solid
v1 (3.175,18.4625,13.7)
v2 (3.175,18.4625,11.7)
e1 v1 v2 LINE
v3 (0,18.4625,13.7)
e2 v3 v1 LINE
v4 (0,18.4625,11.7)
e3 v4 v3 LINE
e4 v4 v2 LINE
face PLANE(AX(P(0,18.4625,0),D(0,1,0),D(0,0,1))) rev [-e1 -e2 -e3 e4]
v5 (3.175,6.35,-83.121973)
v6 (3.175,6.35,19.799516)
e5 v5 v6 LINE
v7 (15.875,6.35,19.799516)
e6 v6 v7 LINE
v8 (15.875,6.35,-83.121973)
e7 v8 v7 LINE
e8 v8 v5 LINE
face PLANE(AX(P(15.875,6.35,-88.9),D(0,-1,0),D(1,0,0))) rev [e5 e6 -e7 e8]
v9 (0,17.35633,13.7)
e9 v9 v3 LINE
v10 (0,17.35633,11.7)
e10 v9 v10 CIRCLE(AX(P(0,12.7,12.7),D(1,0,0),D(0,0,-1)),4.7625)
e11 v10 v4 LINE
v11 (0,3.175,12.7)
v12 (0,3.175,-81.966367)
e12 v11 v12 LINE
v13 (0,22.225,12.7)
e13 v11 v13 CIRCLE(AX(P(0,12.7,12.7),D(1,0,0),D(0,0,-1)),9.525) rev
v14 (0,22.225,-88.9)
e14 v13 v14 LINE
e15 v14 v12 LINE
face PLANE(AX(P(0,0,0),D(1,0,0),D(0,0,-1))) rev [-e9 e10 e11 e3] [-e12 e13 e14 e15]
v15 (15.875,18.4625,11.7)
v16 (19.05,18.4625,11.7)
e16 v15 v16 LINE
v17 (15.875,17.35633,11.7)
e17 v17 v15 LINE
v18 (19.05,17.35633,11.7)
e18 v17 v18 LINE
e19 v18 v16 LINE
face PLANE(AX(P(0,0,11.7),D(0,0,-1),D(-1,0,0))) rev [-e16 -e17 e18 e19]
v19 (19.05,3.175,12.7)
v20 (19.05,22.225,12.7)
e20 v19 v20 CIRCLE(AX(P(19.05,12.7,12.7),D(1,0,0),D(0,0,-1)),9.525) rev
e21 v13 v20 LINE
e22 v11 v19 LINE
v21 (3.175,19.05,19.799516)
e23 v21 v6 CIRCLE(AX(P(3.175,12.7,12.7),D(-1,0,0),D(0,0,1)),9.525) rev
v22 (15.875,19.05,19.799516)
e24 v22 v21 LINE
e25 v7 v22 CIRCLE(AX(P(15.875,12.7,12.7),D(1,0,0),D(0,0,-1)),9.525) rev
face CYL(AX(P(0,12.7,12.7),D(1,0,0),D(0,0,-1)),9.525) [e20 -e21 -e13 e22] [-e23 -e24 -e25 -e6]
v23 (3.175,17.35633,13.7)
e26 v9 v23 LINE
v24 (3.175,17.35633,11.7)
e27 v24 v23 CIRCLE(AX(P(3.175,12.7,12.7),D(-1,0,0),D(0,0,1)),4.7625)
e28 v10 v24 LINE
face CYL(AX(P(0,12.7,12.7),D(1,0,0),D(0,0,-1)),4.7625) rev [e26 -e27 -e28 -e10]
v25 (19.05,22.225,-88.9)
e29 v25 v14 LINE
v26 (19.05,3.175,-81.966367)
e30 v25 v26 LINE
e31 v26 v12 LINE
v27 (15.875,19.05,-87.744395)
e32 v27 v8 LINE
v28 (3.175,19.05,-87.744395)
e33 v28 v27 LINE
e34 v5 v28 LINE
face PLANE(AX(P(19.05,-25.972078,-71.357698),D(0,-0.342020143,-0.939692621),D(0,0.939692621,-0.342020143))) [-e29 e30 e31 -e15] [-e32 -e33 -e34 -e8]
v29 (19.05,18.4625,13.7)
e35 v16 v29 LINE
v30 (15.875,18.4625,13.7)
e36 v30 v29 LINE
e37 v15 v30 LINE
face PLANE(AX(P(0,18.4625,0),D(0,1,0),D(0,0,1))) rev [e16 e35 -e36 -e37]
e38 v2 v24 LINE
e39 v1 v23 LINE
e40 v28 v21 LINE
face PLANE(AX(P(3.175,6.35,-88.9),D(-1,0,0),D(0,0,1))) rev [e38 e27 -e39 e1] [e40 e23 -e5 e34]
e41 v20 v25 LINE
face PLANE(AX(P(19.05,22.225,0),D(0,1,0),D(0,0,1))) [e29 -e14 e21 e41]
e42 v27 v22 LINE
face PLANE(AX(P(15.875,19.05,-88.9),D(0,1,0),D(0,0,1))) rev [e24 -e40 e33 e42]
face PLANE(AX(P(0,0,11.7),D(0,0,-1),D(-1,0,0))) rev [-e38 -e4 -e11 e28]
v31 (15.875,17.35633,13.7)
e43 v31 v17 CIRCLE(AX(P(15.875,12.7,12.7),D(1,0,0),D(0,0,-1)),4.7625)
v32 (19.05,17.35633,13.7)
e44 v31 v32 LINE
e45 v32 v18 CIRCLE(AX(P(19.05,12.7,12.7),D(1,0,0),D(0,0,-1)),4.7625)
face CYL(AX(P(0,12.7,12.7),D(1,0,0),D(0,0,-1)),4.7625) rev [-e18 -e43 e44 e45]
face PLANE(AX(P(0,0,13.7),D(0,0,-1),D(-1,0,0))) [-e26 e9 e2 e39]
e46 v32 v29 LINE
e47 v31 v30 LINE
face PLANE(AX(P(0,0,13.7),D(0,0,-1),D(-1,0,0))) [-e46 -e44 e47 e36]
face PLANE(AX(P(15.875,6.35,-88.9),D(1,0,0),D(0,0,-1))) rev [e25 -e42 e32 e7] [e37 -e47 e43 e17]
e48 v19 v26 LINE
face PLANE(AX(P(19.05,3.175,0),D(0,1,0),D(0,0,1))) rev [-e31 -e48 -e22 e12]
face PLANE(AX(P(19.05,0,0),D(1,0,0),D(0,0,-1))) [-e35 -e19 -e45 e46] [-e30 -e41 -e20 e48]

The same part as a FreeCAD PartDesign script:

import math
import FreeCAD as App
import Part
import Sketcher

V = App.Vector
Q = App.Units.Quantity

doc = App.newDocument("Part")
body = doc.addObject("PartDesign::Body", "Body")

# Sketch on YZ plane
sketch1 = doc.addObject("Sketcher::SketchObject", "Sketch")
body.addObject(sketch1)
sketch1.AttachmentSupport = (doc.YZ_Plane, [""])
sketch1.MapMode = "FlatFace"
sketch1.addGeometry(Part.LineSegment(V(22.225, -88.9, 0), V(22.225, 12.7, 0)), False)
sketch1.addGeometry(Part.LineSegment(V(22.225, 12.7, 0), V(3.175, 12.7, 0)), False)
sketch1.addGeometry(Part.LineSegment(V(3.175, 12.7, 0), V(3.175, -81.966367, 0)), False)
sketch1.addGeometry(Part.LineSegment(V(3.175, -81.966367, 0), V(22.225, -88.9, 0)), False)
sketch1.addConstraint(Sketcher.Constraint("Coincident", 0, 2, 1, 1))
sketch1.addConstraint(Sketcher.Constraint("Coincident", 1, 2, 2, 1))
sketch1.addConstraint(Sketcher.Constraint("Coincident", 2, 2, 3, 1))
sketch1.addConstraint(Sketcher.Constraint("Coincident", 3, 2, 0, 1))
sketch1.addConstraint(Sketcher.Constraint("Vertical", 0))
sketch1.addConstraint(Sketcher.Constraint("Horizontal", 1))
sketch1.addConstraint(Sketcher.Constraint("Vertical", 2))
sketch1.addConstraint(Sketcher.Constraint("DistanceY", 0, 1, 0, 2, Q("4 in")))
sketch1.addConstraint(Sketcher.Constraint("Angle", 3, Q("-20 deg")))
sketch1.addConstraint(Sketcher.Constraint("DistanceX", 1, 2, 1, 1, Q("0.75 in")))
sketch1.addConstraint(Sketcher.Constraint("DistanceY", -1, 1, 0, 2, Q("0.5 in")))
sketch1.addConstraint(Sketcher.Constraint("DistanceX", -1, 1, 0, 2, Q("0.875 in")))
pad1 = doc.addObject("PartDesign::Pad", "Pad")
body.addObject(pad1)
pad1.Profile = sketch1
pad1.Length = Q("0.75 in")

# Sketch on XY plane
sketch2 = doc.addObject("Sketcher::SketchObject", "Sketch001")
body.addObject(sketch2)
sketch2.AttachmentSupport = (doc.XY_Plane, [""])
sketch2.MapMode = "FlatFace"
sketch2.AttachmentOffset = App.Placement(V(0, 0, 0.5 * 25.4), App.Rotation())
sketch2.addGeometry(Part.LineSegment(V(3.175, 19.05, 0), V(3.175, 6.35, 0)), False)
sketch2.addGeometry(Part.LineSegment(V(3.175, 6.35, 0), V(15.875, 6.35, 0)), False)
sketch2.addGeometry(Part.LineSegment(V(15.875, 6.35, 0), V(15.875, 19.05, 0)), False)
sketch2.addGeometry(Part.LineSegment(V(15.875, 19.05, 0), V(3.175, 19.05, 0)), False)
sketch2.addConstraint(Sketcher.Constraint("Coincident", 0, 2, 1, 1))
sketch2.addConstraint(Sketcher.Constraint("Coincident", 1, 2, 2, 1))
sketch2.addConstraint(Sketcher.Constraint("Coincident", 2, 2, 3, 1))
sketch2.addConstraint(Sketcher.Constraint("Coincident", 3, 2, 0, 1))
sketch2.addConstraint(Sketcher.Constraint("Vertical", 0))
sketch2.addConstraint(Sketcher.Constraint("Horizontal", 1))
sketch2.addConstraint(Sketcher.Constraint("Vertical", 2))
sketch2.addConstraint(Sketcher.Constraint("Horizontal", 3))
sketch2.addConstraint(Sketcher.Constraint("Equal", 3, 0))
sketch2.addConstraint(Sketcher.Constraint("DistanceX", 1, 1, 1, 2, Q("0.5 in")))
sketch2.addConstraint(Sketcher.Constraint("DistanceY", -1, 1, 0, 2, Q("0.25 in")))
sketch2.addConstraint(Sketcher.Constraint("DistanceX", -1, 1, 0, 2, Q("0.125 in")))
pocket1 = doc.addObject("PartDesign::Pocket", "Pocket")
body.addObject(pocket1)
pocket1.Profile = sketch2
pocket1.Type = "ThroughAll"

# Sketch on XY plane
sketch3 = doc.addObject("Sketcher::SketchObject", "Sketch002")
body.addObject(sketch3)
sketch3.AttachmentSupport = (doc.XY_Plane, [""])
sketch3.MapMode = "FlatFace"
sketch3.AttachmentOffset = App.Placement(V(0, 0, 0.5 * 25.4), App.Rotation())
sketch3.addGeometry(Part.LineSegment(V(0, 22.225, 0), V(0, 3.175, 0)), False)
sketch3.addGeometry(Part.LineSegment(V(0, 3.175, 0), V(19.05, 3.175, 0)), False)
sketch3.addGeometry(Part.LineSegment(V(19.05, 3.175, 0), V(19.05, 22.225, 0)), False)
sketch3.addGeometry(Part.LineSegment(V(19.05, 22.225, 0), V(0, 22.225, 0)), False)
sketch3.addGeometry(Part.LineSegment(V(15.875, 6.35, 0), V(3.175, 6.35, 0)), False)
sketch3.addGeometry(Part.LineSegment(V(3.175, 6.35, 0), V(3.175, 19.05, 0)), False)
sketch3.addGeometry(Part.LineSegment(V(3.175, 19.05, 0), V(15.875, 19.05, 0)), False)
sketch3.addGeometry(Part.LineSegment(V(15.875, 19.05, 0), V(15.875, 6.35, 0)), False)
sketch3.addConstraint(Sketcher.Constraint("Coincident", 0, 2, 1, 1))
sketch3.addConstraint(Sketcher.Constraint("Coincident", 1, 2, 2, 1))
sketch3.addConstraint(Sketcher.Constraint("Coincident", 2, 2, 3, 1))
sketch3.addConstraint(Sketcher.Constraint("Coincident", 3, 2, 0, 1))
sketch3.addConstraint(Sketcher.Constraint("Coincident", 4, 2, 5, 1))
sketch3.addConstraint(Sketcher.Constraint("Coincident", 5, 2, 6, 1))
sketch3.addConstraint(Sketcher.Constraint("Coincident", 6, 2, 7, 1))
sketch3.addConstraint(Sketcher.Constraint("Coincident", 7, 2, 4, 1))
sketch3.addConstraint(Sketcher.Constraint("Vertical", 0))
sketch3.addConstraint(Sketcher.Constraint("Horizontal", 1))
sketch3.addConstraint(Sketcher.Constraint("Vertical", 2))
sketch3.addConstraint(Sketcher.Constraint("Horizontal", 3))
sketch3.addConstraint(Sketcher.Constraint("Horizontal", 4))
sketch3.addConstraint(Sketcher.Constraint("Vertical", 5))
sketch3.addConstraint(Sketcher.Constraint("Horizontal", 6))
sketch3.addConstraint(Sketcher.Constraint("Vertical", 7))
sketch3.addConstraint(Sketcher.Constraint("PointOnObject", 0, 2, -2))
sketch3.addConstraint(Sketcher.Constraint("Equal", 3, 0))
sketch3.addConstraint(Sketcher.Constraint("Equal", 6, 5))
sketch3.addConstraint(Sketcher.Constraint("DistanceX", 4, 2, 4, 1, Q("0.5 in")))
sketch3.addConstraint(Sketcher.Constraint("DistanceX", 1, 1, 1, 2, Q("0.75 in")))
sketch3.addConstraint(Sketcher.Constraint("DistanceY", -1, 1, 4, 2, Q("0.25 in")))
sketch3.addConstraint(Sketcher.Constraint("DistanceY", -1, 1, 0, 2, Q("0.125 in")))
sketch3.addConstraint(Sketcher.Constraint("DistanceX", -1, 1, 4, 2, Q("0.125 in")))
pad2 = doc.addObject("PartDesign::Pad", "Pad001")
body.addObject(pad2)
pad2.Profile = sketch3
pad2.Length = Q("0.5 in")

# Sketch on YZ plane
sketch4 = doc.addObject("Sketcher::SketchObject", "Sketch003")
body.addObject(sketch4)
sketch4.AttachmentSupport = (doc.YZ_Plane, [""])
sketch4.MapMode = "FlatFace"
sketch4.AttachmentOffset = App.Placement(V(0, 0, 0.75 * 25.4), App.Rotation())
sketch4.addGeometry(Part.ArcOfCircle(Part.Circle(V(12.7, 12.7, 0), V(0, 0, 1), 4.7625), math.radians(12.120814), math.radians(270)), False)
sketch4.addGeometry(Part.ArcOfCircle(Part.Circle(V(12.7, 12.7, 0), V(0, 0, 1), 4.7625), math.radians(-90), math.radians(-12.120814)), False)
sketch4.addGeometry(Part.LineSegment(V(17.35633, 11.7, 0), V(18.4625, 11.7, 0)), False)
sketch4.addGeometry(Part.LineSegment(V(18.4625, 11.7, 0), V(18.4625, 13.7, 0)), False)
sketch4.addGeometry(Part.LineSegment(V(18.4625, 13.7, 0), V(17.35633, 13.7, 0)), False)
sketch4.addGeometry(Part.LineSegment(V(3.175, 25.4, 0), V(3.175, 12.7, 0)), False)
sketch4.addGeometry(Part.ArcOfCircle(Part.Circle(V(12.7, 12.7, 0), V(0, 0, 1), 9.525), math.radians(0), math.radians(180)), False)
sketch4.addGeometry(Part.LineSegment(V(22.225, 12.7, 0), V(22.225, 25.4, 0)), False)
sketch4.addGeometry(Part.LineSegment(V(22.225, 25.4, 0), V(3.175, 25.4, 0)), False)
sketch4.addConstraint(Sketcher.Constraint("Tangent", 0, 2, 1, 1))
sketch4.addConstraint(Sketcher.Constraint("Coincident", 1, 2, 2, 1))
sketch4.addConstraint(Sketcher.Constraint("Coincident", 2, 2, 3, 1))
sketch4.addConstraint(Sketcher.Constraint("Coincident", 3, 2, 4, 1))
sketch4.addConstraint(Sketcher.Constraint("Coincident", 4, 2, 0, 1))
sketch4.addConstraint(Sketcher.Constraint("Tangent", 5, 2, 6, 2))
sketch4.addConstraint(Sketcher.Constraint("Tangent", 6, 1, 7, 1))
sketch4.addConstraint(Sketcher.Constraint("Coincident", 7, 2, 8, 1))
sketch4.addConstraint(Sketcher.Constraint("Coincident", 8, 2, 5, 1))
sketch4.addConstraint(Sketcher.Constraint("Horizontal", 2))
sketch4.addConstraint(Sketcher.Constraint("Vertical", 3))
sketch4.addConstraint(Sketcher.Constraint("Horizontal", 4))
sketch4.addConstraint(Sketcher.Constraint("Vertical", 5))
sketch4.addConstraint(Sketcher.Constraint("Vertical", 7))
sketch4.addConstraint(Sketcher.Constraint("Horizontal", 8))
sketch4.addConstraint(Sketcher.Constraint("Coincident", 6, 3, 0, 3))
sketch4.addConstraint(Sketcher.Constraint("Equal", 0, 1))
sketch4.addConstraint(Sketcher.Constraint("Vertical", 6, 3, 0, 2))
sketch4.addConstraint(Sketcher.Constraint("Vertical", 1, 2, 4, 2))
sketch4.addConstraint(Sketcher.Constraint("DistanceY", 5, 2, 5, 1, Q("0.5 in")))
sketch4.addConstraint(Sketcher.Constraint("DistanceY", -1, 1, 7, 2, Q("1 in")))
sketch4.addConstraint(Sketcher.Constraint("Radius", 0, Q("0.1875 in")))
sketch4.addConstraint(Sketcher.Constraint("Radius", 6, Q("0.375 in")))
sketch4.addConstraint(Sketcher.Constraint("DistanceX", -1, 1, 0, 3, Q("0.5 in")))
sketch4.addConstraint(Sketcher.Constraint("DistanceY", 3, 1, 3, 2, 2.0))
sketch4.addConstraint(Sketcher.Constraint("DistanceX", 2, 1, 2, 2, 1.10617))
pocket2 = doc.addObject("PartDesign::Pocket", "Pocket001")
body.addObject(pocket2)
pocket2.Profile = sketch4
pocket2.Length = Q("0.75 in")

doc.recompute()
